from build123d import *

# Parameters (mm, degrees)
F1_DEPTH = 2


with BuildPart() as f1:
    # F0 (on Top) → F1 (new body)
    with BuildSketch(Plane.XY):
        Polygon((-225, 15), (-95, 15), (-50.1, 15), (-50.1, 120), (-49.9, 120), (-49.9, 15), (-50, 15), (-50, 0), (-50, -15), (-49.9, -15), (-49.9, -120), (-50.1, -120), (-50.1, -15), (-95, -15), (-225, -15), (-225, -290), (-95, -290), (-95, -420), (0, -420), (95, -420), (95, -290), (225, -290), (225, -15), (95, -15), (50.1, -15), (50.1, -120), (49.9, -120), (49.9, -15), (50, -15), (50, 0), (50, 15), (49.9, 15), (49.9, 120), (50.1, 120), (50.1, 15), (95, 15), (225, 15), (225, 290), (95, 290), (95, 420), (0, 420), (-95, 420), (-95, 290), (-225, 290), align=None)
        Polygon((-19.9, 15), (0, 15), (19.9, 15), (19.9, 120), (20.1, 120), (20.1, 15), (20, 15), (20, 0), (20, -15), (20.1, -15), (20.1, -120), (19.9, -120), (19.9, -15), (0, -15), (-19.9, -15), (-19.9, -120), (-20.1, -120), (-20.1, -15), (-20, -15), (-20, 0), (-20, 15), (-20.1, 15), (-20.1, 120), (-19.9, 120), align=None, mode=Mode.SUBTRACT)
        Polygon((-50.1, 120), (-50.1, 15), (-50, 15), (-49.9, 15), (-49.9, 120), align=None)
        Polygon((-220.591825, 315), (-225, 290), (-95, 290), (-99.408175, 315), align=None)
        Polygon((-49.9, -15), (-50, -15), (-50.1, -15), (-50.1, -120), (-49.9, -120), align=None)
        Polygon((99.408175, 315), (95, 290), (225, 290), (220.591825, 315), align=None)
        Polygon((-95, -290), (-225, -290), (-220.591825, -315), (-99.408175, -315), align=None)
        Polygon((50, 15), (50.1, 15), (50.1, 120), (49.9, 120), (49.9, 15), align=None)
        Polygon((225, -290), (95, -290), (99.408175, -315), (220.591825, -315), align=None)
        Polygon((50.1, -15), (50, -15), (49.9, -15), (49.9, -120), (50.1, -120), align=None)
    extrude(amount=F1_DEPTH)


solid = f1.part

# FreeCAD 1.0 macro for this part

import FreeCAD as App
import Part
import Sketcher
from FreeCAD import Vector
Q = App.Units.Quantity

doc = App.newDocument("Part")
params = doc.addObject("Spreadsheet::Sheet", "Params")
for row, (alias, value) in enumerate([
    ("sketch1_width", "175 mm"),
    ("sketch1_width2", "190 mm"),
    ("sketch1_height", "30 mm"),
    ("sketch1_height2", "275 mm"),
    ("sketch1_height3", "130 mm"),
    ("pad1_length", "2 mm"),
], start=1):
    params.set(f"A{row}", alias)
    params.set(f"B{row}", "=" + value)
    params.setAlias(f"B{row}", alias)

body = doc.addObject("PartDesign::Body", "Body")

sketch1 = doc.addObject("Sketcher::SketchObject", "Sketch")
body.addObject(sketch1)
sketch1.AttachmentSupport = (doc.XY_Plane, [""])
sketch1.MapMode = "FlatFace"
sketch1.addGeometry([
    Part.LineSegment(Vector(-225, 15, 0), Vector(-50, 15, 0)),
    Part.LineSegment(Vector(-50, 15, 0), Vector(-50, -15, 0)),
    Part.LineSegment(Vector(-50, -15, 0), Vector(-225, -15, 0)),
    Part.LineSegment(Vector(-225, -15, 0), Vector(-225, -290, 0)),
    Part.LineSegment(Vector(-225, -290, 0), Vector(-220.59, -315, 0)),
    Part.LineSegment(Vector(-220.59, -315, 0), Vector(-99.41, -315, 0)),
    Part.LineSegment(Vector(-99.41, -315, 0), Vector(-95, -290, 0)),
    Part.LineSegment(Vector(-95, -290, 0), Vector(-95, -420, 0)),
    Part.LineSegment(Vector(-95, -420, 0), Vector(95, -420, 0)),
    Part.LineSegment(Vector(95, -420, 0), Vector(95, -290, 0)),
    Part.LineSegment(Vector(95, -290, 0), Vector(99.41, -315, 0)),
    Part.LineSegment(Vector(99.41, -315, 0), Vector(220.59, -315, 0)),
    Part.LineSegment(Vector(220.59, -315, 0), Vector(225, -290, 0)),
    Part.LineSegment(Vector(225, -290, 0), Vector(225, -15, 0)),
    Part.LineSegment(Vector(225, -15, 0), Vector(50, -15, 0)),
    Part.LineSegment(Vector(50, -15, 0), Vector(50, 15, 0)),
    Part.LineSegment(Vector(50, 15, 0), Vector(225, 15, 0)),
    Part.LineSegment(Vector(225, 15, 0), Vector(225, 290, 0)),
    Part.LineSegment(Vector(225, 290, 0), Vector(220.59, 315, 0)),
    Part.LineSegment(Vector(220.59, 315, 0), Vector(99.41, 315, 0)),
    Part.LineSegment(Vector(99.41, 315, 0), Vector(95, 290, 0)),
    Part.LineSegment(Vector(95, 290, 0), Vector(95, 420, 0)),
    Part.LineSegment(Vector(95, 420, 0), Vector(-95, 420, 0)),
    Part.LineSegment(Vector(-95, 420, 0), Vector(-95, 290, 0)),
    Part.LineSegment(Vector(-95, 290, 0), Vector(-99.41, 315, 0)),
    Part.LineSegment(Vector(-99.41, 315, 0), Vector(-220.59, 315, 0)),
    Part.LineSegment(Vector(-220.59, 315, 0), Vector(-225, 290, 0)),
    Part.LineSegment(Vector(-225, 290, 0), Vector(-225, 15, 0)),
    Part.LineSegment(Vector(-19.9, 120, 0), Vector(-19.9, 15, 0)),
    Part.LineSegment(Vector(-19.9, 15, 0), Vector(19.9, 15, 0)),
    Part.LineSegment(Vector(19.9, 15, 0), Vector(19.9, 120, 0)),
    Part.LineSegment(Vector(19.9, 120, 0), Vector(20.1, 120, 0)),
    Part.LineSegment(Vector(20.1, 120, 0), Vector(20.1, 15, 0)),
    Part.LineSegment(Vector(20.1, 15, 0), Vector(20, 15, 0)),
    Part.LineSegment(Vector(20, 15, 0), Vector(20, -15, 0)),
    Part.LineSegment(Vector(20, -15, 0), Vector(20.1, -15, 0)),
    Part.LineSegment(Vector(20.1, -15, 0), Vector(20.1, -120, 0)),
    Part.LineSegment(Vector(20.1, -120, 0), Vector(19.9, -120, 0)),
    Part.LineSegment(Vector(19.9, -120, 0), Vector(19.9, -15, 0)),
    Part.LineSegment(Vector(19.9, -15, 0), Vector(-19.9, -15, 0)),
    Part.LineSegment(Vector(-19.9, -15, 0), Vector(-19.9, -120, 0)),
    Part.LineSegment(Vector(-19.9, -120, 0), Vector(-20.1, -120, 0)),
    Part.LineSegment(Vector(-20.1, -120, 0), Vector(-20.1, -15, 0)),
    Part.LineSegment(Vector(-20.1, -15, 0), Vector(-20, -15, 0)),
    Part.LineSegment(Vector(-20, -15, 0), Vector(-20, 15, 0)),
    Part.LineSegment(Vector(-20, 15, 0), Vector(-20.1, 15, 0)),
    Part.LineSegment(Vector(-20.1, 15, 0), Vector(-20.1, 120, 0)),
    Part.LineSegment(Vector(-20.1, 120, 0), Vector(-19.9, 120, 0)),
], False)
sketch1.addConstraint([
    Sketcher.Constraint("Coincident", 0, 2, 1, 1),
    Sketcher.Constraint("Coincident", 1, 2, 2, 1),
    Sketcher.Constraint("Coincident", 2, 2, 3, 1),
    Sketcher.Constraint("Coincident", 3, 2, 4, 1),
    Sketcher.Constraint("Coincident", 4, 2, 5, 1),
    Sketcher.Constraint("Coincident", 5, 2, 6, 1),
    Sketcher.Constraint("Coincident", 6, 2, 7, 1),
    Sketcher.Constraint("Coincident", 7, 2, 8, 1),
    Sketcher.Constraint("Coincident", 8, 2, 9, 1),
    Sketcher.Constraint("Coincident", 9, 2, 10, 1),
    Sketcher.Constraint("Coincident", 10, 2, 11, 1),
    Sketcher.Constraint("Coincident", 11, 2, 12, 1),
    Sketcher.Constraint("Coincident", 12, 2, 13, 1),
    Sketcher.Constraint("Coincident", 13, 2, 14, 1),
    Sketcher.Constraint("Coincident", 14, 2, 15, 1),
    Sketcher.Constraint("Coincident", 15, 2, 16, 1),
    Sketcher.Constraint("Coincident", 16, 2, 17, 1),
    Sketcher.Constraint("Coincident", 17, 2, 18, 1),
    Sketcher.Constraint("Coincident", 18, 2, 19, 1),
    Sketcher.Constraint("Coincident", 19, 2, 20, 1),
    Sketcher.Constraint("Coincident", 20, 2, 21, 1),
    Sketcher.Constraint("Coincident", 21, 2, 22, 1),
    Sketcher.Constraint("Coincident", 22, 2, 23, 1),
    Sketcher.Constraint("Coincident", 23, 2, 24, 1),
    Sketcher.Constraint("Coincident", 24, 2, 25, 1),
    Sketcher.Constraint("Coincident", 25, 2, 26, 1),
    Sketcher.Constraint("Coincident", 26, 2, 27, 1),
    Sketcher.Constraint("Coincident", 27, 2, 0, 1),
    Sketcher.Constraint("Coincident", 28, 2, 29, 1),
    Sketcher.Constraint("Coincident", 29, 2, 30, 1),
    Sketcher.Constraint("Coincident", 30, 2, 31, 1),
    Sketcher.Constraint("Coincident", 31, 2, 32, 1),
    Sketcher.Constraint("Coincident", 32, 2, 33, 1),
    Sketcher.Constraint("Coincident", 33, 2, 34, 1),
    Sketcher.Constraint("Coincident", 34, 2, 35, 1),
    Sketcher.Constraint("Coincident", 35, 2, 36, 1),
    Sketcher.Constraint("Coincident", 36, 2, 37, 1),
    Sketcher.Constraint("Coincident", 37, 2, 38, 1),
    Sketcher.Constraint("Coincident", 38, 2, 39, 1),
    Sketcher.Constraint("Coincident", 39, 2, 40, 1),
    Sketcher.Constraint("Coincident", 40, 2, 41, 1),
    Sketcher.Constraint("Coincident", 41, 2, 42, 1),
    Sketcher.Constraint("Coincident", 42, 2, 43, 1),
    Sketcher.Constraint("Coincident", 43, 2, 44, 1),
    Sketcher.Constraint("Coincident", 44, 2, 45, 1),
    Sketcher.Constraint("Coincident", 45, 2, 46, 1),
    Sketcher.Constraint("Coincident", 46, 2, 47, 1),
    Sketcher.Constraint("Coincident", 47, 2, 28, 1),
    Sketcher.Constraint("Horizontal", 0),
    Sketcher.Constraint("Vertical", 1),
    Sketcher.Constraint("Horizontal", 2),
    Sketcher.Constraint("Vertical", 3),
    Sketcher.Constraint("Horizontal", 5),
    Sketcher.Constraint("Vertical", 7),
    Sketcher.Constraint("Horizontal", 8),
    Sketcher.Constraint("Vertical", 9),
    Sketcher.Constraint("Horizontal", 11),
    Sketcher.Constraint("Vertical", 13),
    Sketcher.Constraint("Horizontal", 14),
    Sketcher.Constraint("Vertical", 15),
    Sketcher.Constraint("Horizontal", 16),
    Sketcher.Constraint("Vertical", 17),
    Sketcher.Constraint("Horizontal", 19),
    Sketcher.Constraint("Vertical", 21),
    Sketcher.Constraint("Horizontal", 22),
    Sketcher.Constraint("Vertical", 23),
    Sketcher.Constraint("Horizontal", 25),
    Sketcher.Constraint("Vertical", 27),
    Sketcher.Constraint("Vertical", 28),
    Sketcher.Constraint("Horizontal", 29),
    Sketcher.Constraint("Vertical", 30),
    Sketcher.Constraint("Horizontal", 31),
    Sketcher.Constraint("Vertical", 32),
    Sketcher.Constraint("Horizontal", 33),
    Sketcher.Constraint("Vertical", 34),
    Sketcher.Constraint("Horizontal", 35),
    Sketcher.Constraint("Vertical", 36),
    Sketcher.Constraint("Horizontal", 37),
    Sketcher.Constraint("Vertical", 38),
    Sketcher.Constraint("Horizontal", 39),
    Sketcher.Constraint("Vertical", 40),
    Sketcher.Constraint("Horizontal", 41),
    Sketcher.Constraint("Vertical", 42),
    Sketcher.Constraint("Horizontal", 43),
    Sketcher.Constraint("Vertical", 44),
    Sketcher.Constraint("Horizontal", 45),
    Sketcher.Constraint("Vertical", 46),
    Sketcher.Constraint("Horizontal", 47),
    Sketcher.Constraint("Symmetric", 0, 2, 14, 2, -1, 1),
    Sketcher.Constraint("Symmetric", 2, 2, 16, 2, -1, 1),
    Sketcher.Constraint("Symmetric", 4, 2, 18, 2, -1, 1),
    Sketcher.Constraint("Symmetric", 6, 2, 20, 2, -1, 1),
    Sketcher.Constraint("Symmetric", 8, 2, 22, 2, -1, 1),
    Sketcher.Constraint("Symmetric", 10, 2, 24, 2, -1, 1),
    Sketcher.Constraint("Symmetric", 12, 2, 26, 2, -1, 1),
    Sketcher.Constraint("Symmetric", 28, 2, 38, 2, -1, 1),
    Sketcher.Constraint("Symmetric", 30, 2, 40, 2, -1, 1),
    Sketcher.Constraint("Symmetric", 32, 2, 42, 2, -1, 1),
    Sketcher.Constraint("Symmetric", 34, 2, 44, 2, -1, 1),
    Sketcher.Constraint("Symmetric", 36, 2, 46, 2, -1, 1),
    Sketcher.Constraint("Symmetric", 6, 2, 9, 2, -2),
    Sketcher.Constraint("Symmetric", 5, 2, 10, 2, -2),
    Sketcher.Constraint("Symmetric", 3, 2, 12, 2, -2),
    Sketcher.Constraint("Symmetric", 37, 2, 40, 2, -2),
    Sketcher.Constraint("Symmetric", 35, 2, 42, 2, -2),
    Sketcher.Constraint("Parallel", 4, 10),
    Sketcher.Constraint("Parallel", 6, 12),
    Sketcher.Constraint("Parallel", 10, 18),
    Sketcher.Constraint("Parallel", 12, 20),
    Sketcher.Constraint("Parallel", 18, 24),
    Sketcher.Constraint("Parallel", 20, 26),
    Sketcher.Constraint("Horizontal", 3, 2, 6, 2),
    Sketcher.Constraint("Horizontal", 2, 2, 13, 2),
    Sketcher.Constraint("Horizontal", 27, 2, 28, 2),
    Sketcher.Constraint("Horizontal", 29, 2, 32, 2),
    Sketcher.Constraint("DistanceX", 0, 1, 0, 2, 175.0),
    Sketcher.Constraint("DistanceX", 8, 1, 8, 2, 190.0),
    Sketcher.Constraint("DistanceY", 1, 2, 1, 1, 30.0),
    Sketcher.Constraint("DistanceY", 3, 2, 3, 1, 275.0),
    Sketcher.Constraint("DistanceY", 7, 2, 7, 1, 130.0),
    Sketcher.Constraint("DistanceY", 28, 2, 28, 1, 105.0),
    Sketcher.Constraint("Angle", 4, Q("-79.999999 deg")),
    Sketcher.Constraint("DistanceX", 29, 1, 29, 2, 39.8),
    Sketcher.Constraint("DistanceX", 31, 1, 31, 2, 0.2),
    Sketcher.Constraint("DistanceX", 33, 2, 33, 1, 0.1),
    Sketcher.Constraint("DistanceX", 0, 2, -1, 1, 50.0),
    Sketcher.Constraint("DistanceY", 4, 2, -1, 1, 315.0),
])
sketch1.setExpression("Constraints[115]", "Params.sketch1_width")
sketch1.setExpression("Constraints[116]", "Params.sketch1_width2")
sketch1.setExpression("Constraints[117]", "Params.sketch1_height")
sketch1.setExpression("Constraints[118]", "Params.sketch1_height2")
sketch1.setExpression("Constraints[119]", "Params.sketch1_height3")
pad1 = doc.addObject("PartDesign::Pad", "Pad")
body.addObject(pad1)
pad1.Profile = sketch1
pad1.setExpression("Length", "Params.pad1_length")

doc.recompute()
